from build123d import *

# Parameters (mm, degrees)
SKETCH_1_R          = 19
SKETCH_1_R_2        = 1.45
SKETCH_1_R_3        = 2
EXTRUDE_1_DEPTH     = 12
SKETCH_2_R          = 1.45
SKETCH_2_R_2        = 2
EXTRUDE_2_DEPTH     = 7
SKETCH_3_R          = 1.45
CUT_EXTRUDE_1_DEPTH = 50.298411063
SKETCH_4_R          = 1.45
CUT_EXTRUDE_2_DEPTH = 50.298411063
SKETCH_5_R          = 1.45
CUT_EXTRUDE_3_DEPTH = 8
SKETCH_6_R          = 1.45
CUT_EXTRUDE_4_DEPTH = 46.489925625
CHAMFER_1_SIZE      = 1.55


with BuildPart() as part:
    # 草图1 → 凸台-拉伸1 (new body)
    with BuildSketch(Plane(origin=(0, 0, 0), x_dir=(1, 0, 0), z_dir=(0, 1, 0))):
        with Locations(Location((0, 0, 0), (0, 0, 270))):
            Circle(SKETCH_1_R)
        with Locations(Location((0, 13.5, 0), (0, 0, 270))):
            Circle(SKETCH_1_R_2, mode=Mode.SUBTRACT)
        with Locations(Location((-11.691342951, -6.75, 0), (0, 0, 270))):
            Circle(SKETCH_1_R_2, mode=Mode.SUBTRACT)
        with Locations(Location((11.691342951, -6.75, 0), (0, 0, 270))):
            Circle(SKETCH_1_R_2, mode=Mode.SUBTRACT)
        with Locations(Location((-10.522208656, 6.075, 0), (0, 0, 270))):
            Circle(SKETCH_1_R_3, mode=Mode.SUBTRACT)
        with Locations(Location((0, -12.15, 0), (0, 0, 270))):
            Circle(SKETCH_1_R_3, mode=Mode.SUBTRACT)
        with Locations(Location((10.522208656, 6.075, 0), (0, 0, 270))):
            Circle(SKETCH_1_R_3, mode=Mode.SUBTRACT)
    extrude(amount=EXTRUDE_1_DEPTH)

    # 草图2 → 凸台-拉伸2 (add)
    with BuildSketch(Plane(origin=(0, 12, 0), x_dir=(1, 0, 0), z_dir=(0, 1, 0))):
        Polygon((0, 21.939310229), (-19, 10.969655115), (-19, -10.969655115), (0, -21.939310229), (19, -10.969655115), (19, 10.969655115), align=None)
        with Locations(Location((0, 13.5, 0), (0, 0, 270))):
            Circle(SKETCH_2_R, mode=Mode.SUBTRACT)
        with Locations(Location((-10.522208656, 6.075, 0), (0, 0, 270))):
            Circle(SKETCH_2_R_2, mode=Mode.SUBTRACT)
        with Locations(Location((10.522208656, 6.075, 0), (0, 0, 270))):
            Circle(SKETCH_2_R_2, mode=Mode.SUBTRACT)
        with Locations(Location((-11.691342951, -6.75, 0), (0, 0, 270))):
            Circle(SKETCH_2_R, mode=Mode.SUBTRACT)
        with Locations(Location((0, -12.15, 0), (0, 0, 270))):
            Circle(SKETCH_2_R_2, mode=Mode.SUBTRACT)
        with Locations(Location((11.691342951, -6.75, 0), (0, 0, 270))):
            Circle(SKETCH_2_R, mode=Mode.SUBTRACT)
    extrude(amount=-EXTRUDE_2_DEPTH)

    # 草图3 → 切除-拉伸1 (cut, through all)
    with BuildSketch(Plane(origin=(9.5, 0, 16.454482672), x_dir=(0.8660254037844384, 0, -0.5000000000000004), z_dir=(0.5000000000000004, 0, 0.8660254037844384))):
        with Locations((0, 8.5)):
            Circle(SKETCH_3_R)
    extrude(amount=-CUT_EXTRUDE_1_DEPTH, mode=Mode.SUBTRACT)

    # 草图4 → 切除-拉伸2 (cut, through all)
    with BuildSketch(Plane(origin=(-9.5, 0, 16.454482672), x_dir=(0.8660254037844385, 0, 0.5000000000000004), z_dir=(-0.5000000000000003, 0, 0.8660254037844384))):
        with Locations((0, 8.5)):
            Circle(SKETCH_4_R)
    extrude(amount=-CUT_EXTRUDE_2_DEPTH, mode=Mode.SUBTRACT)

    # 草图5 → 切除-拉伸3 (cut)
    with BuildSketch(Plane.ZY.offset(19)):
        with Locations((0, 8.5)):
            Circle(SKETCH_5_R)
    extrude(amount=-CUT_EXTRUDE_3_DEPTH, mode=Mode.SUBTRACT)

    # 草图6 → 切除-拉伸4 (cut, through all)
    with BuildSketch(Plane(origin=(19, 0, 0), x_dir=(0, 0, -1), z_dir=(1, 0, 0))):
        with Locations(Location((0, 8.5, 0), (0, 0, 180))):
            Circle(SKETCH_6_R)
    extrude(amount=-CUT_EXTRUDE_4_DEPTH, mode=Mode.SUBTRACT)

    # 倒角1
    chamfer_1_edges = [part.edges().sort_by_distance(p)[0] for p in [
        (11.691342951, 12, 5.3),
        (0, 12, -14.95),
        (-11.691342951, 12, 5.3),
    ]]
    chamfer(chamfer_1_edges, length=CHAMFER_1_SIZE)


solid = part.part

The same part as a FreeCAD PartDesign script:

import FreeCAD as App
import Part
import Sketcher

V = App.Vector
Q = App.Units.Quantity


def edges_at(feature, points):
    """Names of the edges that pass closest to the given points."""
    edges = feature.Shape.Edges
    near = lambda p: min(range(len(edges)), key=lambda i: edges[i].distToShape(Part.Vertex(*p))[0])
    return sorted({f"Edge{near(p) + 1}" for p in points})

doc = App.newDocument("Part")
params = doc.addObject("Spreadsheet::Sheet", "Params")
for row, (alias, value) in enumerate([
    ("sketch1_diameter", "38 mm"),
    ("sketch1_diameter2", "4 mm"),
    ("sketch1_diameter3", "2.9 mm"),
    ("pad1_length", "12 mm"),
    ("sketch2_diameter", "4 mm"),
    ("sketch2_diameter2", "2.9 mm"),
    ("pad2_length", "7 mm"),
    ("sketch3_diameter", "2.9 mm"),
    ("sketch4_diameter", "2.9 mm"),
    ("sketch5_diameter", "2.9 mm"),
    ("pocket3_length", "8 mm"),
    ("sketch6_diameter", "2.9 mm"),
    ("chamfer_size", "1.55 mm"),
], start=1):
    params.set(f"A{row}", alias)
    params.set(f"B{row}", "=" + value)
    params.setAlias(f"B{row}", alias)

body = doc.addObject("PartDesign::Body", "Body")

# Sketch on XZ plane
sketch1 = body.newObject("Sketcher::SketchObject", "Sketch")
sketch1.AttachmentSupport = (doc.getObject("XZ_Plane"), [""])
sketch1.MapMode = "FlatFace"
sketch1.addGeometry([
    Part.Circle(V(0, 0, 0), V(0, 0, 1), 19),  # 0
    Part.Circle(V(-10.522209, -6.075, 0), V(0, 0, 1), 2),  # 1
    Part.Circle(V(0, -13.5, 0), V(0, 0, 1), 1.45),  # 2
    Part.Circle(V(-11.691343, 6.75, 0), V(0, 0, 1), 1.45),  # 3
    Part.Circle(V(10.522209, -6.075, 0), V(0, 0, 1), 2),  # 4
    Part.Circle(V(0, 12.15, 0), V(0, 0, 1), 2),  # 5
    Part.Circle(V(11.691343, 6.75, 0), V(0, 0, 1), 1.45),  # 6
], False)
sketch1.addConstraint([
    Sketcher.Constraint("Coincident", 0, 3, -1, 1),
    Sketcher.Constraint("Equal", 2, 3),
    Sketcher.Constraint("Equal", 1, 4),
    Sketcher.Constraint("Equal", 4, 5),
    Sketcher.Constraint("Equal", 3, 6),
    Sketcher.Constraint("Symmetric", 1, 3, 4, 3, -2),
    Sketcher.Constraint("Symmetric", 3, 3, 6, 3, -2),
    Sketcher.Constraint("PointOnObject", 2, 3, -2),
    Sketcher.Constraint("PointOnObject", 5, 3, -2),
    Sketcher.Constraint("Diameter", 0, Q("38 mm")),
    Sketcher.Constraint("Diameter", 1, Q("4 mm")),
    Sketcher.Constraint("Diameter", 2, Q("2.9 mm")),
    Sketcher.Constraint("DistanceY", 2, 3, -1, 1, Q("13.5 mm")),
    Sketcher.Constraint("DistanceY", 3, 3, 5, 3, Q("5.4 mm")),
    Sketcher.Constraint("DistanceY", -1, 1, 3, 3, Q("6.75 mm")),
    Sketcher.Constraint("DistanceY", 1, 3, -1, 1, Q("6.075 mm")),
    Sketcher.Constraint("DistanceX", 1, 3, -1, 1, Q("10.522209 mm")),
    Sketcher.Constraint("DistanceX", 3, 3, 4, 3, Q("22.213552 mm")),
])
sketch1.setExpression("Constraints[9]", "Params.sketch1_diameter")
sketch1.setExpression("Constraints[10]", "Params.sketch1_diameter2")
sketch1.setExpression("Constraints[11]", "Params.sketch1_diameter3")
pad1 = body.newObject("PartDesign::Pad", "Pad")
pad1.Profile = sketch1
pad1.setExpression("Length", "Params.pad1_length")
pad1.Reversed = True

# Sketch on XZ plane
sketch2 = body.newObject("Sketcher::SketchObject", "Sketch001")
sketch2.AttachmentSupport = (doc.getObject("XZ_Plane"), [""])
sketch2.MapMode = "FlatFace"
sketch2.AttachmentOffset = App.Placement(V(0, 0, -12), App.Rotation())
sketch2.addGeometry([
    Part.LineSegment(V(0, -21.93931, 0), V(-19, -10.969655, 0)),  # 0
    Part.LineSegment(V(-19, -10.969655, 0), V(-19, 10.969655, 0)),  # 1
    Part.LineSegment(V(-19, 10.969655, 0), V(0, 21.93931, 0)),  # 2
    Part.LineSegment(V(0, 21.93931, 0), V(19, 10.969655, 0)),  # 3
    Part.LineSegment(V(19, 10.969655, 0), V(19, -10.969655, 0)),  # 4
    Part.LineSegment(V(19, -10.969655, 0), V(0, -21.93931, 0)),  # 5
    Part.Circle(V(-11.691343, 6.75, 0), V(0, 0, 1), 1.45),  # 6
    Part.Circle(V(0, 12.15, 0), V(0, 0, 1), 2),  # 7
    Part.Circle(V(11.691343, 6.75, 0), V(0, 0, 1), 1.45),  # 8
    Part.Circle(V(-10.522209, -6.075, 0), V(0, 0, 1), 2),  # 9
    Part.Circle(V(10.522209, -6.075, 0), V(0, 0, 1), 2),  # 10
    Part.Circle(V(0, -13.5, 0), V(0, 0, 1), 1.45),  # 11
], False)
sketch2.addConstraint([
    Sketcher.Constraint("Coincident", 0, 2, 1, 1),
    Sketcher.Constraint("Coincident", 1, 2, 2, 1),
    Sketcher.Constraint("Coincident", 2, 2, 3, 1),
    Sketcher.Constraint("Coincident", 3, 2, 4, 1),
    Sketcher.Constraint("Coincident", 4, 2, 5, 1),
    Sketcher.Constraint("Coincident", 5, 2, 0, 1),
    Sketcher.Constraint("Vertical", 1),
    Sketcher.Constraint("Vertical", 4),
    Sketcher.Constraint("Equal", 6, 8),
    Sketcher.Constraint("Equal", 7, 9),
    Sketcher.Constraint("Equal", 9, 10),
    Sketcher.Constraint("Equal", 8, 11),
    Sketcher.Constraint("Symmetric", 0, 2, 3, 2, -1, 1),
    Sketcher.Constraint("Symmetric", 2, 2, 5, 2, -1, 1),
    Sketcher.Constraint("Symmetric", 6, 3, 8, 3, -2),
    Sketcher.Constraint("Symmetric", 9, 3, 10, 3, -2),
    Sketcher.Constraint("PointOnObject", 7, 3, -2),
    Sketcher.Constraint("PointOnObject", 11, 3, -2),
    Sketcher.Constraint("PointOnObject", 2, 2, -2),
    Sketcher.Constraint("Parallel", 2, 5),
    Sketcher.Constraint("Horizontal", 1, 2, 3, 2),
    Sketcher.Constraint("Diameter", 7, Q("4 mm")),
    Sketcher.Constraint("Diameter", 6, Q("2.9 mm")),
    Sketcher.Constraint("Angle", 0, Q("150 deg")),
    Sketcher.Constraint("DistanceX", 0, 2, -1, 1, Q("19 mm")),
    Sketcher.Constraint("DistanceY", 11, 3, -1, 1, Q("13.5 mm")),
    Sketcher.Constraint("DistanceY", 6, 3, 7, 3, Q("5.4 mm")),
    Sketcher.Constraint("DistanceY", -1, 1, 6, 3, Q("6.75 mm")),
    Sketcher.Constraint("DistanceY", 9, 3, -1, 1, Q("6.075 mm")),
    Sketcher.Constraint("DistanceY", 1, 1, 1, 2, Q("21.93931 mm")),
    Sketcher.Constraint("DistanceX", 9, 3, -1, 1, Q("10.522209 mm")),
    Sketcher.Constraint("DistanceX", 9, 3, 8, 3, Q("22.213552 mm")),
])
sketch2.setExpression("Constraints[21]", "Params.sketch2_diameter")
sketch2.setExpression("Constraints[22]", "Params.sketch2_diameter2")
pad2 = body.newObject("PartDesign::Pad", "Pad001")
pad2.Profile = sketch2
pad2.setExpression("Length", "Params.pad2_length")

# Sketch on an angled plane
sketch3 = body.newObject("Sketcher::SketchObject", "Sketch002")
sketch3.Placement = App.Placement(V(9.5, 0, 16.454483), App.Rotation(V(0.866025404, 0, -0.5), V(0, 1, 0), V(0.5, 0, 0.866025404), "ZXY"))
sketch3.addGeometry(Part.Circle(V(0, 8.5, 0), V(0, 0, 1), 1.45), False)
sketch3.addConstraint([
    Sketcher.Constraint("PointOnObject", 0, 3, -2),
    Sketcher.Constraint("Diameter", 0, Q("2.9 mm")),
    Sketcher.Constraint("DistanceY", -1, 1, 0, 3, Q("8.5 mm")),
])
sketch3.setExpression("Constraints[1]", "Params.sketch3_diameter")
pocket1 = body.newObject("PartDesign::Pocket", "Pocket")
pocket1.Profile = sketch3
pocket1.Type = "ThroughAll"

# Sketch on an angled plane
sketch4 = body.newObject("Sketcher::SketchObject", "Sketch003")
sketch4.Placement = App.Placement(V(-9.5, 0, 16.454483), App.Rotation(V(0.866025404, 0, 0.5), V(0, 1, 0), V(-0.5, 0, 0.866025404), "ZXY"))
sketch4.addGeometry(Part.Circle(V(0, 8.5, 0), V(0, 0, 1), 1.45), False)
sketch4.addConstraint([
    Sketcher.Constraint("PointOnObject", 0, 3, -2),
    Sketcher.Constraint("Diameter", 0, Q("2.9 mm")),
    Sketcher.Constraint("DistanceY", -1, 1, 0, 3, Q("8.5 mm")),
])
sketch4.setExpression("Constraints[1]", "Params.sketch4_diameter")
pocket2 = body.newObject("PartDesign::Pocket", "Pocket001")
pocket2.Profile = sketch4
pocket2.Type = "ThroughAll"

# Sketch on YZ plane
sketch5 = body.newObject("Sketcher::SketchObject", "Sketch004")
sketch5.AttachmentSupport = (doc.getObject("YZ_Plane"), [""])
sketch5.MapMode = "FlatFace"
sketch5.AttachmentOffset = App.Placement(V(0, 0, -19), App.Rotation())
sketch5.addGeometry(Part.Circle(V(8.5, 0, 0), V(0, 0, 1), 1.45), False)
sketch5.addConstraint([
    Sketcher.Constraint("PointOnObject", 0, 3, -1),
    Sketcher.Constraint("Diameter", 0, Q("2.9 mm")),
    Sketcher.Constraint("DistanceX", -1, 1, 0, 3, Q("8.5 mm")),
])
sketch5.setExpression("Constraints[1]", "Params.sketch5_diameter")
pocket3 = body.newObject("PartDesign::Pocket", "Pocket002")
pocket3.Profile = sketch5
pocket3.setExpression("Length", "Params.pocket3_length")
pocket3.Reversed = True

# Sketch on YZ plane
sketch6 = body.newObject("Sketcher::SketchObject", "Sketch005")
sketch6.AttachmentSupport = (doc.getObject("YZ_Plane"), [""])
sketch6.MapMode = "FlatFace"
sketch6.AttachmentOffset = App.Placement(V(0, 0, 19), App.Rotation())
sketch6.addGeometry(Part.Circle(V(8.5, 0, 0), V(0, 0, 1), 1.45), False)
sketch6.addConstraint([
    Sketcher.Constraint("PointOnObject", 0, 3, -1),
    Sketcher.Constraint("Diameter", 0, Q("2.9 mm")),
    Sketcher.Constraint("DistanceX", -1, 1, 0, 3, Q("8.5 mm")),
])
sketch6.setExpression("Constraints[1]", "Params.sketch6_diameter")
pocket4 = body.newObject("PartDesign::Pocket", "Pocket003")
pocket4.Profile = sketch6
pocket4.Type = "ThroughAll"
doc.recompute()

chamfer = body.newObject("PartDesign::Chamfer", "Chamfer")
chamfer.Base = (pocket4, edges_at(pocket4, [(11.691, 12, 5.3), (0, 12, -14.95), (-11.691, 12, 5.3)]))
chamfer.setExpression("Size", "Params.chamfer_size")

doc.recompute()
